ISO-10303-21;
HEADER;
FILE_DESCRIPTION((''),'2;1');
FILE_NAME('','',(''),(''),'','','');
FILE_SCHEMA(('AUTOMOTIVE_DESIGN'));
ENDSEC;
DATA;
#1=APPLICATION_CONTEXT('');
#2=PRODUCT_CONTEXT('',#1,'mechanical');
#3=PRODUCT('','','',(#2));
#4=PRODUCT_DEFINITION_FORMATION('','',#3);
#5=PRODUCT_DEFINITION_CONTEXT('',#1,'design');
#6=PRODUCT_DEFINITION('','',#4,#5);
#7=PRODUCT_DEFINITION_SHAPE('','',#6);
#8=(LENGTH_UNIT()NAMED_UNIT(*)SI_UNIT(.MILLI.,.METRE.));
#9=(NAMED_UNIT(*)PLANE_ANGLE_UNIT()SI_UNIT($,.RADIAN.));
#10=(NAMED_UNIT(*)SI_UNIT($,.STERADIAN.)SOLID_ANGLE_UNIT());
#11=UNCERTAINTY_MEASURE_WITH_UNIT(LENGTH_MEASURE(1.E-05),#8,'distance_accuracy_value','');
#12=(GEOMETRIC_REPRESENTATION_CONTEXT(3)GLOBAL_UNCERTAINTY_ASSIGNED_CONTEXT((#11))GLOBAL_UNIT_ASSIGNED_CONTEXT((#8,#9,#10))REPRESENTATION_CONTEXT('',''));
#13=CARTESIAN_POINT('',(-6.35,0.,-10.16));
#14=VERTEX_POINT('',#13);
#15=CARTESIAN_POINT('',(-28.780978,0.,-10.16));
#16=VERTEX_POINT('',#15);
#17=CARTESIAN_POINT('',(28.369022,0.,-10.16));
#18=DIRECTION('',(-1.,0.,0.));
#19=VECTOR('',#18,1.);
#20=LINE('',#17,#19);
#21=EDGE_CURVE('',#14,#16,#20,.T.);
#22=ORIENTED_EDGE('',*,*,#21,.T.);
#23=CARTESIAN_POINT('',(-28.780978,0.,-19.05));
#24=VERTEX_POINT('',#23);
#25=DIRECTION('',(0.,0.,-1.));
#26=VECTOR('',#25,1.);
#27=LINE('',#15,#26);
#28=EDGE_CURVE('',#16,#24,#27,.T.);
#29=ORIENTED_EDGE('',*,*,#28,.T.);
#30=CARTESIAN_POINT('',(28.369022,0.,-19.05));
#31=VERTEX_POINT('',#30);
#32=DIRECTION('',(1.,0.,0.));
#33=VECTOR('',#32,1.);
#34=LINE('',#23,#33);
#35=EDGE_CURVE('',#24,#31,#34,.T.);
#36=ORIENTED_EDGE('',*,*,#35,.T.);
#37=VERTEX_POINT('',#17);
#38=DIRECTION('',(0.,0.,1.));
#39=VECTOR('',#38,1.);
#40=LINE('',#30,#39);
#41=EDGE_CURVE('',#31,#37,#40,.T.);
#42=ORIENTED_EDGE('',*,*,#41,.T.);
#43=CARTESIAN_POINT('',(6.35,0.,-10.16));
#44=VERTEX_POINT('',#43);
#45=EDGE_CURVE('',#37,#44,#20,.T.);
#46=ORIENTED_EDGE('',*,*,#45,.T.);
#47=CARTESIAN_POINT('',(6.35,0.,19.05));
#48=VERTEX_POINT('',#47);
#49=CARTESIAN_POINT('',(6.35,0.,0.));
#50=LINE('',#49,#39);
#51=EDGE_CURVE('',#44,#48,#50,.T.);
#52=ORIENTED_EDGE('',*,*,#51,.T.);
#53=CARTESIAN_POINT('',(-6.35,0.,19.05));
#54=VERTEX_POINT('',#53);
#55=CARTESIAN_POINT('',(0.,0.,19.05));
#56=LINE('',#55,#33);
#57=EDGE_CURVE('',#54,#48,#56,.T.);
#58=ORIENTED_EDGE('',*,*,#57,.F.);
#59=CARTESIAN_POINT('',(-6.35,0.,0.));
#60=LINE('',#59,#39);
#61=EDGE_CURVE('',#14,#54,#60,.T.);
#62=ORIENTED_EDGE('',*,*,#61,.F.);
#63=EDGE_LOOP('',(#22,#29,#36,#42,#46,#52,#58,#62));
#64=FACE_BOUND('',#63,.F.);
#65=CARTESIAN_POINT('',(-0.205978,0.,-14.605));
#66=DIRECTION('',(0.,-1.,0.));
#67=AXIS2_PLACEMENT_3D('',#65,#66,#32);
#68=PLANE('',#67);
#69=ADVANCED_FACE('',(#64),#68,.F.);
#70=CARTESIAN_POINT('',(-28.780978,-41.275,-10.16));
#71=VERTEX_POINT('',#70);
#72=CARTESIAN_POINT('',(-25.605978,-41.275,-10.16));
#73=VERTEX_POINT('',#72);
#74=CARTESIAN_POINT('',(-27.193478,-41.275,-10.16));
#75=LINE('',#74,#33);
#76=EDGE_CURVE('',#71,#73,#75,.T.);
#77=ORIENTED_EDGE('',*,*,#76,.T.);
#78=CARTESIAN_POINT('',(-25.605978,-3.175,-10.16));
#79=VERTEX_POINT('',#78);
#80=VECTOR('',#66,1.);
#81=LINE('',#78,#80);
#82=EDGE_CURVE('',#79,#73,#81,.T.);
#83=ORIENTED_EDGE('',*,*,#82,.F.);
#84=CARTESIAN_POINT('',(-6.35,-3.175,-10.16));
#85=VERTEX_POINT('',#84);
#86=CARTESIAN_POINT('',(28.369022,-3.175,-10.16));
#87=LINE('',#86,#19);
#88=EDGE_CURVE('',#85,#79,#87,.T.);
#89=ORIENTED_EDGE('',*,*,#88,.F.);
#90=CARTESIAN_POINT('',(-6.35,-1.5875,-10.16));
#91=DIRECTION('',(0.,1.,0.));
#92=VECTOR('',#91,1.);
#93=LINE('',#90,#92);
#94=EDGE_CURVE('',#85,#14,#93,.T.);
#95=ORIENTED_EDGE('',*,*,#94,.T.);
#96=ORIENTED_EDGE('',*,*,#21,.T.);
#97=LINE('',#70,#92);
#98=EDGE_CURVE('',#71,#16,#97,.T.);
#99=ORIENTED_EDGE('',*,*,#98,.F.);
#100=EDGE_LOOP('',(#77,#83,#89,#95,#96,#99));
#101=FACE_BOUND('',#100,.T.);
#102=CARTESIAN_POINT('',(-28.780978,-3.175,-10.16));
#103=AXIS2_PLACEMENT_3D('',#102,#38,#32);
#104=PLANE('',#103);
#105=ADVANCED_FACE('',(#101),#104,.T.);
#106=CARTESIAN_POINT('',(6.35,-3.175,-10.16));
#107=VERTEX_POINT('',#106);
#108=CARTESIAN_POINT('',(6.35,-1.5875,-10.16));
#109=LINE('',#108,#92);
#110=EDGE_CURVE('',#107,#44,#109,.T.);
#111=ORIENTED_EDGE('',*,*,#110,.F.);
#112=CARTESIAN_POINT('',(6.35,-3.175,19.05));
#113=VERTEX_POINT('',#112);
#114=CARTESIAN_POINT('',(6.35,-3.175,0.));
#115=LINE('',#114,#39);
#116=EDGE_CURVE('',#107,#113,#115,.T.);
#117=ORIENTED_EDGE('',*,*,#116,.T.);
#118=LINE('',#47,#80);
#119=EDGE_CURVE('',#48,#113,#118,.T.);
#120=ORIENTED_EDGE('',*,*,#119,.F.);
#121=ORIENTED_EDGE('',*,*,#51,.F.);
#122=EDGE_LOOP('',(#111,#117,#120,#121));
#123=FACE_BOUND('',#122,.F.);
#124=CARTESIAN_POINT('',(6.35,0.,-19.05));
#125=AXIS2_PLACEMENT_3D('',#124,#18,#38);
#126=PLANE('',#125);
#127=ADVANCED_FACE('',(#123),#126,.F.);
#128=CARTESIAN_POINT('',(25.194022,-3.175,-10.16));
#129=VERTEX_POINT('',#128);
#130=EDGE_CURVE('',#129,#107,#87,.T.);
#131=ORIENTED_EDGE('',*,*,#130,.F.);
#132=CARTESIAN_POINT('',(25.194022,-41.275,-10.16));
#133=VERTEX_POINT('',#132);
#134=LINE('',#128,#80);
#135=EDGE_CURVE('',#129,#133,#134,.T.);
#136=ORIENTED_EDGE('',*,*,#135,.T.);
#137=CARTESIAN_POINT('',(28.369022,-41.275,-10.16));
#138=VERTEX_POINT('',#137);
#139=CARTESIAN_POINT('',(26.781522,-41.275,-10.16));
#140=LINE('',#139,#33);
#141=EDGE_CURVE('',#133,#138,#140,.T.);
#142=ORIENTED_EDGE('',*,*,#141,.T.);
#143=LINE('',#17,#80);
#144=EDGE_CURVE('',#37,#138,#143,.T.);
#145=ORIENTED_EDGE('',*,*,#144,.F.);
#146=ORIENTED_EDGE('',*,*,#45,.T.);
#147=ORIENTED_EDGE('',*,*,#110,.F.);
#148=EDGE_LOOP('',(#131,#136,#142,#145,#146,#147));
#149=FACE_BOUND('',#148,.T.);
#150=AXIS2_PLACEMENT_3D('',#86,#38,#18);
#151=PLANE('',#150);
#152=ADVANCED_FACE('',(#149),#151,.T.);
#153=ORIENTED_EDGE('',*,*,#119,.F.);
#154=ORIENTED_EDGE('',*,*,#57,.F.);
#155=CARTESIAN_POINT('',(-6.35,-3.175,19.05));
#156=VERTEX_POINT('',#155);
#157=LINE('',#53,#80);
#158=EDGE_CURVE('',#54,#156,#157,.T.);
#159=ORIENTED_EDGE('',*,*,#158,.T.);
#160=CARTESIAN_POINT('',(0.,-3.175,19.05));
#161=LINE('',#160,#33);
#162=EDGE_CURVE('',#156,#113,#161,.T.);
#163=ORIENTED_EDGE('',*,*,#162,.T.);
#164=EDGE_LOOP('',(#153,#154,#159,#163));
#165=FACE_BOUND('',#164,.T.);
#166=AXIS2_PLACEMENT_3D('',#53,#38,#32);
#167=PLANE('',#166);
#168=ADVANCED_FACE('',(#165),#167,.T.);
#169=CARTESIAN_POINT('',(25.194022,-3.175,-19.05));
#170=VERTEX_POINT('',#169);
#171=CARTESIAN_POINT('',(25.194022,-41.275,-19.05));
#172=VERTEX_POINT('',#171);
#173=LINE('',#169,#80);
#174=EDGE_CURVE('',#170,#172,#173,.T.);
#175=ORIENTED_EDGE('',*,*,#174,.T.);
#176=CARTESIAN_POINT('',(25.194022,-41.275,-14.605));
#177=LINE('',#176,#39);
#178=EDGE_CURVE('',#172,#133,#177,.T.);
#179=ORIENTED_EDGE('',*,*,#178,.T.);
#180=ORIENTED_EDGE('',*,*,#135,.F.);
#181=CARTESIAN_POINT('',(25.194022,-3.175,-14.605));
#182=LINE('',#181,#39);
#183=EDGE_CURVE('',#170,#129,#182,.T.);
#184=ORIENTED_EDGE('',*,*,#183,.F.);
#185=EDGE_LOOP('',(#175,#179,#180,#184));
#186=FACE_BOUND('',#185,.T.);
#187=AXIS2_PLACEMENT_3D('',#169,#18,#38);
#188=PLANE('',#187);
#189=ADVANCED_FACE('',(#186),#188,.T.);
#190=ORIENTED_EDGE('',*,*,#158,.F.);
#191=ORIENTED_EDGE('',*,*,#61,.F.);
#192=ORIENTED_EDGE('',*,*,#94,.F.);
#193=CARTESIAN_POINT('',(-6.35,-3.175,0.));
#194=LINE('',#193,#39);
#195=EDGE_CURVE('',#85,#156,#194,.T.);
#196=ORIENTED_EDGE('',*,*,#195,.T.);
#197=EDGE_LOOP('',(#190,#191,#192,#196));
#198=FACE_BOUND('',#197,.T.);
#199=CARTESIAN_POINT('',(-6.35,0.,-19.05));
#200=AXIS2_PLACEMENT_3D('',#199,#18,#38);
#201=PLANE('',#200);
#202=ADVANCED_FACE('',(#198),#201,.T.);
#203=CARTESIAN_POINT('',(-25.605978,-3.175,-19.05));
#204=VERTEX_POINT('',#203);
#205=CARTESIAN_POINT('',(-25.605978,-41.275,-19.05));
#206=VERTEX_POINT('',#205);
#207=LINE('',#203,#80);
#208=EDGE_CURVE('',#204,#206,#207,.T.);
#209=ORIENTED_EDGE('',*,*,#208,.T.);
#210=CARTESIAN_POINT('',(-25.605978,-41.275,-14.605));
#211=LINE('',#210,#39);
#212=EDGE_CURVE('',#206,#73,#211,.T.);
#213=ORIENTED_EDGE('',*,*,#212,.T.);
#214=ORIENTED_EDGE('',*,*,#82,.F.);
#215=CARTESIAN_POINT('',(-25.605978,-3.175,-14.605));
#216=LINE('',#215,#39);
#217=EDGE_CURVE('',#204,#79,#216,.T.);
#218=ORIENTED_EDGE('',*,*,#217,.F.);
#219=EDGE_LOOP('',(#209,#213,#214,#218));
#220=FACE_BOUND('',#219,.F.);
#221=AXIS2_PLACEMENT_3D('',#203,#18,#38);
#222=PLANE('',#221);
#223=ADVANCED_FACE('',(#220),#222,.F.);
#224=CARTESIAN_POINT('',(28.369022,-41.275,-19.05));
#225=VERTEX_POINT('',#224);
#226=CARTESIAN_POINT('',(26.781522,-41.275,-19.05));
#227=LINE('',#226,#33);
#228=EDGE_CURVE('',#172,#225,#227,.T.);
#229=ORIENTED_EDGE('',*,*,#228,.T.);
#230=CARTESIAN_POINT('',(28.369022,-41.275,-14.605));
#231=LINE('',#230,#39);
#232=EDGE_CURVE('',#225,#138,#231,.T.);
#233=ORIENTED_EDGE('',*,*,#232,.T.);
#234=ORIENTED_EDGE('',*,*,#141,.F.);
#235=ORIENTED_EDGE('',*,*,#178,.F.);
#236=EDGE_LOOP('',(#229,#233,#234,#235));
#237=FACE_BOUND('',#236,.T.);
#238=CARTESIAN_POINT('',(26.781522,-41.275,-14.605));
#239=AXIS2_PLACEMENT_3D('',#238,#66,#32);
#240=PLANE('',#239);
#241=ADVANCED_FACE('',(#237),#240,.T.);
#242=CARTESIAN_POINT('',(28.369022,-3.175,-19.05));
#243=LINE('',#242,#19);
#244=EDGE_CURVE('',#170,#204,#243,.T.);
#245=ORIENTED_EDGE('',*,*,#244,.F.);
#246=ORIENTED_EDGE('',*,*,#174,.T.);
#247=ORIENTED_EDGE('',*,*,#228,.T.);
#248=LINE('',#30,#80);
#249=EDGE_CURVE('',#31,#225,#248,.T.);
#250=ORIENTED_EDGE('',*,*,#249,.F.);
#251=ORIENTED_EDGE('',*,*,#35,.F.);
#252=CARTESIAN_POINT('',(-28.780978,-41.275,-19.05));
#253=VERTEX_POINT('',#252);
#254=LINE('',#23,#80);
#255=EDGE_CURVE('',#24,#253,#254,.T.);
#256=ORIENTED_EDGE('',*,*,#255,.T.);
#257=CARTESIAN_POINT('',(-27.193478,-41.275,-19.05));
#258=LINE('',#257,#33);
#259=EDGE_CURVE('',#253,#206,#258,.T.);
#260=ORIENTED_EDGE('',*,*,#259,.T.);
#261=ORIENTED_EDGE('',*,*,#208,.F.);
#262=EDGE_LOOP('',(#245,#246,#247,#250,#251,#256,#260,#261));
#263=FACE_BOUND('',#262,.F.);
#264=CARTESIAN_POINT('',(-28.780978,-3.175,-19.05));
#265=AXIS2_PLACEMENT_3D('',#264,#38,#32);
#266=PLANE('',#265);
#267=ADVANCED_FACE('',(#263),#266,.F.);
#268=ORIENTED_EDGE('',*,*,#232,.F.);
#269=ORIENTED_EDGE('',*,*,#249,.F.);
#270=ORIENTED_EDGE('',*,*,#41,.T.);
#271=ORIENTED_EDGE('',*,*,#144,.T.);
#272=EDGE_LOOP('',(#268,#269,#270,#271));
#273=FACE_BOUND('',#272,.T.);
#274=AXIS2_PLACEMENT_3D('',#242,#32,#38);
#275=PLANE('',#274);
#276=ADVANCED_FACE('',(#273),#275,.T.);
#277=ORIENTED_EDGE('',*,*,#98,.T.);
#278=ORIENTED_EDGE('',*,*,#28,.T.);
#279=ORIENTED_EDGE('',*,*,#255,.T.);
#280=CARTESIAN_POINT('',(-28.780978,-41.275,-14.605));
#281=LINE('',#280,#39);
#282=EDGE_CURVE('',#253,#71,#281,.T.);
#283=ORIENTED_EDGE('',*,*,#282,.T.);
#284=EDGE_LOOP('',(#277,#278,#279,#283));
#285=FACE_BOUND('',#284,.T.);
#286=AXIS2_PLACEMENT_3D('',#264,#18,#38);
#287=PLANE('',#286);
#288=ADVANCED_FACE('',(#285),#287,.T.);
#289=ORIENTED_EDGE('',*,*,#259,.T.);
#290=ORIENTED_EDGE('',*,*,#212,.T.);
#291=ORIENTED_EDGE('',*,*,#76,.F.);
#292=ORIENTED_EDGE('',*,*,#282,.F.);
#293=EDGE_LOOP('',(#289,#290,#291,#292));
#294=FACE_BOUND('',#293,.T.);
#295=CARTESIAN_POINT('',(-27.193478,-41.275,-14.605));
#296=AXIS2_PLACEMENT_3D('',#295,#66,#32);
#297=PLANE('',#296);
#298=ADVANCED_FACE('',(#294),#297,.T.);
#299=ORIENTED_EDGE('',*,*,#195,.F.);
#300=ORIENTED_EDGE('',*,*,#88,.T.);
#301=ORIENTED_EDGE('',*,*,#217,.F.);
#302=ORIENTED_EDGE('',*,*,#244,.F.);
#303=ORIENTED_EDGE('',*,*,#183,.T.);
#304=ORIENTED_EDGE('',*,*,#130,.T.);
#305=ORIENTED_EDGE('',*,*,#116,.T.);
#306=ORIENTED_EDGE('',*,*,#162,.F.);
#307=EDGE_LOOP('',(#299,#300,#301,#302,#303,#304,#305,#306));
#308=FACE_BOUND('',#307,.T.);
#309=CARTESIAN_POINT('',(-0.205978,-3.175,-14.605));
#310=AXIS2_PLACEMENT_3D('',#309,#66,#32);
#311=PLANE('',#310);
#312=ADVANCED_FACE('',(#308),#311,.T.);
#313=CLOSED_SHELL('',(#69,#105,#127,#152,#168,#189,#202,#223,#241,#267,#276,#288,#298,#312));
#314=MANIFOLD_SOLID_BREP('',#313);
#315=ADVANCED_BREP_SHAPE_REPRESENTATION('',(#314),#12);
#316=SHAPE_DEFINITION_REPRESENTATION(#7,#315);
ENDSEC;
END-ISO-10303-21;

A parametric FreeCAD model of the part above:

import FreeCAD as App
import Part
import Sketcher
Q = App.Units.Quantity

doc = App.newDocument("Part")
params = doc.addObject("Spreadsheet::Sheet", "Params")
for row, (alias, value) in enumerate([
    ("sketch1_width", "0.5 in"),
    ("sketch1_height", "1.5 in"),
    ("pad1_length", "0.125 in"),
    ("sketch2_width", "2.25 in"),
    ("sketch2_height", "0.35 in"),
    ("pad2_length", "0.125 in"),
    ("sketch3_height", "0.35 in"),
    ("sketch3_width", "0.125 in"),
    ("pad3_length", "1.5 in"),
], start=1):
    params.set(f"A{row}", alias)
    params.set(f"B{row}", "=" + value)
    params.setAlias(f"B{row}", alias)

body = doc.addObject("PartDesign::Body", "Body")

# Sketch on XZ plane
sketch1 = body.newObject("Sketcher::SketchObject", "Sketch")
sketch1.AttachmentSupport = (doc.getObject("XZ_Plane"), [""])
sketch1.MapMode = "FlatFace"
sketch1.addGeometry([
    Part.LineSegment(App.Vector(-6, 19, 0), App.Vector(-6, -19, 0)),
    Part.LineSegment(App.Vector(-6, -19, 0), App.Vector(6, -19, 0)),
    Part.LineSegment(App.Vector(6, -19, 0), App.Vector(6, 19, 0)),
    Part.LineSegment(App.Vector(6, 19, 0), App.Vector(-6, 19, 0)),
], False)
sketch1.addConstraint([
    Sketcher.Constraint("Coincident", 0, 2, 1, 1),
    Sketcher.Constraint("Coincident", 1, 2, 2, 1),
    Sketcher.Constraint("Coincident", 2, 2, 3, 1),
    Sketcher.Constraint("Coincident", 3, 2, 0, 1),
    Sketcher.Constraint("Vertical", 0),
    Sketcher.Constraint("Horizontal", 1),
    Sketcher.Constraint("Vertical", 2),
    Sketcher.Constraint("Horizontal", 3),
    Sketcher.Constraint("Symmetric", 0, 2, 2, 2, -1, 1),
    Sketcher.Constraint("DistanceX", 1, 1, 1, 2, Q("0.5 in")),
    Sketcher.Constraint("DistanceY", 0, 2, 0, 1, Q("1.5 in")),
])
sketch1.setExpression("Constraints[9]", "Params.sketch1_width")
sketch1.setExpression("Constraints[10]", "Params.sketch1_height")
pad1 = body.newObject("PartDesign::Pad", "Pad")
pad1.Profile = sketch1
pad1.setExpression("Length", "Params.pad1_length")

# Sketch on XZ plane
sketch2 = body.newObject("Sketcher::SketchObject", "Sketch001")
sketch2.AttachmentSupport = (doc.getObject("XZ_Plane"), [""])
sketch2.MapMode = "FlatFace"
sketch2.AttachmentOffset = App.Placement(App.Vector(0, 0, 0.125 * 25.4), App.Rotation())
sketch2.addGeometry([
    Part.LineSegment(App.Vector(28, -19, 0), App.Vector(28, -10, 0)),
    Part.LineSegment(App.Vector(28, -10, 0), App.Vector(-29, -10, 0)),
    Part.LineSegment(App.Vector(-29, -10, 0), App.Vector(-29, -19, 0)),
    Part.LineSegment(App.Vector(-29, -19, 0), App.Vector(28, -19, 0)),
], False)
sketch2.addConstraint([
    Sketcher.Constraint("Coincident", 0, 2, 1, 1),
    Sketcher.Constraint("Coincident", 1, 2, 2, 1),
    Sketcher.Constraint("Coincident", 2, 2, 3, 1),
    Sketcher.Constraint("Coincident", 3, 2, 0, 1),
    Sketcher.Constraint("Vertical", 0),
    Sketcher.Constraint("Horizontal", 1),
    Sketcher.Constraint("Vertical", 2),
    Sketcher.Constraint("Horizontal", 3),
    Sketcher.Constraint("DistanceX", 1, 2, 1, 1, Q("2.25 in")),
    Sketcher.Constraint("DistanceY", 0, 1, 0, 2, Q("0.35 in")),
    Sketcher.Constraint("DistanceY", 0, 2, -1, 1, Q("0.4 in")),
    Sketcher.Constraint("DistanceX", 1, 2, -1, 1, 28.780978),
])
sketch2.setExpression("Constraints[8]", "Params.sketch2_width")
sketch2.setExpression("Constraints[9]", "Params.sketch2_height")
pad2 = body.newObject("PartDesign::Pad", "Pad001")
pad2.Profile = sketch2
pad2.setExpression("Length", "Params.pad2_length")
pad2.Reversed = True

# Sketch on XZ plane
sketch3 = body.newObject("Sketcher::SketchObject", "Sketch002")
sketch3.AttachmentSupport = (doc.getObject("XZ_Plane"), [""])
sketch3.MapMode = "FlatFace"
sketch3.AttachmentOffset = App.Placement(App.Vector(0, 0, 0.125 * 25.4), App.Rotation())
sketch3.addGeometry([
    Part.LineSegment(App.Vector(-28.8, -10.2, 0), App.Vector(-28.8, -19.1, 0)),  # 0
    Part.LineSegment(App.Vector(-28.8, -19.1, 0), App.Vector(-25.6, -19.1, 0)),  # 1
    Part.LineSegment(App.Vector(-25.6, -19.1, 0), App.Vector(-25.6, -10.2, 0)),  # 2
    Part.LineSegment(App.Vector(-25.6, -10.2, 0), App.Vector(-28.8, -10.2, 0)),  # 3
    Part.LineSegment(App.Vector(25.2, -10.2, 0), App.Vector(25.2, -19.1, 0)),  # 4
    Part.LineSegment(App.Vector(25.2, -19.1, 0), App.Vector(28.4, -19.1, 0)),  # 5
    Part.LineSegment(App.Vector(28.4, -19.1, 0), App.Vector(28.4, -10.2, 0)),  # 6
    Part.LineSegment(App.Vector(28.4, -10.2, 0), App.Vector(25.2, -10.2, 0)),  # 7
], False)
sketch3.addConstraint([
    Sketcher.Constraint("Coincident", 0, 2, 1, 1),
    Sketcher.Constraint("Coincident", 1, 2, 2, 1),
    Sketcher.Constraint("Coincident", 2, 2, 3, 1),
    Sketcher.Constraint("Coincident", 3, 2, 0, 1),
    Sketcher.Constraint("Coincident", 4, 2, 5, 1),
    Sketcher.Constraint("Coincident", 5, 2, 6, 1),
    Sketcher.Constraint("Coincident", 6, 2, 7, 1),
    Sketcher.Constraint("Coincident", 7, 2, 4, 1),
    Sketcher.Constraint("Vertical", 0),
    Sketcher.Constraint("Horizontal", 1),
    Sketcher.Constraint("Vertical", 2),
    Sketcher.Constraint("Horizontal", 3),
    Sketcher.Constraint("Vertical", 4),
    Sketcher.Constraint("Horizontal", 5),
    Sketcher.Constraint("Vertical", 6),
    Sketcher.Constraint("Horizontal", 7),
    Sketcher.Constraint("Horizontal", 1, 2, 4, 2),
    Sketcher.Constraint("Horizontal", 3, 2, 6, 2),
    Sketcher.Constraint("Equal", 3, 5),
    Sketcher.Constraint("DistanceX", 1, 2, 4, 2, Q("2 in")),
    Sketcher.Constraint("DistanceY", 0, 2, 0, 1, Q("0.35 in")),
    Sketcher.Constraint("DistanceY", 2, 2, -1, 1, Q("0.4 in")),
    Sketcher.Constraint("DistanceX", 1, 1, 1, 2, Q("0.125 in")),
    Sketcher.Constraint("DistanceX", 0, 2, -1, 1, 28.780978),
])
sketch3.setExpression("Constraints[20]", "Params.sketch3_height")
sketch3.setExpression("Constraints[22]", "Params.sketch3_width")
pad3 = body.newObject("PartDesign::Pad", "Pad002")
pad3.Profile = sketch3
pad3.setExpression("Length", "Params.pad3_length")

doc.recompute()
